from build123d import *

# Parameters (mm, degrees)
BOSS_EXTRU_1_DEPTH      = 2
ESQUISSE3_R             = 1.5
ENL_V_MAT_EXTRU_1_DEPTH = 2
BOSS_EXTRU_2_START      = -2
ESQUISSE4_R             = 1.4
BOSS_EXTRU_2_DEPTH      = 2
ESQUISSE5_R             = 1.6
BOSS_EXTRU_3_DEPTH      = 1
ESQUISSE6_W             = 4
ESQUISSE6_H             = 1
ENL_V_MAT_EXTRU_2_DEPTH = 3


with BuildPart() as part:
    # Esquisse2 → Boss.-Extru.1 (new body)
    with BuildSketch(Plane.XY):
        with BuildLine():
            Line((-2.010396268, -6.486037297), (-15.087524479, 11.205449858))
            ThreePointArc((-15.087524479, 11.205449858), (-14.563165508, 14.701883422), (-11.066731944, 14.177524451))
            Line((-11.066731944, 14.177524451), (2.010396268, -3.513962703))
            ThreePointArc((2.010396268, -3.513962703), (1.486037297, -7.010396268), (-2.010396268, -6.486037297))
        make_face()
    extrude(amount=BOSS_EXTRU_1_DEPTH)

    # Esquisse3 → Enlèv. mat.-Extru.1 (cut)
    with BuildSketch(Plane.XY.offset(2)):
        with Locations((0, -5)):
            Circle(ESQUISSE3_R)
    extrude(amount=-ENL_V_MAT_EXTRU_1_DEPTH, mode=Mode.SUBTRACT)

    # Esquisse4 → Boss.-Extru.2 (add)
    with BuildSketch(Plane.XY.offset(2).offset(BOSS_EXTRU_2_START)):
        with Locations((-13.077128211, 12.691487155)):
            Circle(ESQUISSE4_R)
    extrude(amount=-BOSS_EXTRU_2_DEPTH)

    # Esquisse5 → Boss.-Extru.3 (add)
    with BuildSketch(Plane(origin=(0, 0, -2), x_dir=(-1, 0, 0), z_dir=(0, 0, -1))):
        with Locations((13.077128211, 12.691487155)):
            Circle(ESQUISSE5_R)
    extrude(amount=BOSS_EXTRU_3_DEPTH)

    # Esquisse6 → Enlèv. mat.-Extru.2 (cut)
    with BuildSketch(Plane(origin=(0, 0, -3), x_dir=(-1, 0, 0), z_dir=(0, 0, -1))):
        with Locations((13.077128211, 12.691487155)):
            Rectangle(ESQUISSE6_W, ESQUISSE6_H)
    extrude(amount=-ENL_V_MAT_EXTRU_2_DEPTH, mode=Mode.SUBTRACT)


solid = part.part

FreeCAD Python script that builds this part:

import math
import FreeCAD as App
import Part
import Sketcher

doc = App.newDocument("Part")
body = doc.addObject("PartDesign::Body", "Body")

# Sketch on XY plane
sketch1 = doc.addObject("Sketcher::SketchObject", "Sketch")
body.addObject(sketch1)
sketch1.AttachmentSupport = (doc.XY_Plane, [""])
sketch1.MapMode = "FlatFace"
sketch1.addGeometry([
    Part.LineSegment(App.Vector(-15.1, 11.2, 0), App.Vector(-2, -6.5, 0)),
    Part.ArcOfCircle(Part.Circle(App.Vector(0, -5, 0), App.Vector(0, 0, 1), 2.5), math.radians(-144), math.radians(36)),
    Part.LineSegment(App.Vector(2, -3.5, 0), App.Vector(-11.1, 14.2, 0)),
    Part.ArcOfCircle(Part.Circle(App.Vector(-13.1, 12.7, 0), App.Vector(0, 0, 1), 2.5), math.radians(36), math.radians(216)),
], False)
sketch1.addConstraint([
    Sketcher.Constraint("Tangent", 0, 2, 1, 1),
    Sketcher.Constraint("Tangent", 1, 2, 2, 1),
    Sketcher.Constraint("Tangent", 2, 2, 3, 1),
    Sketcher.Constraint("Tangent", 3, 2, 0, 1),
    Sketcher.Constraint("Equal", 1, 3),
    Sketcher.Constraint("PointOnObject", 1, 3, -2),
    Sketcher.Constraint("Radius", 1, 2.5),
    Sketcher.Constraint("Distance", 0, 22.0),
    Sketcher.Constraint("DistanceY", 1, 3, -1, 1, 5.0),
    Sketcher.Constraint("DistanceX", 3, 3, -1, 1, 13.077128),
])
pad1 = doc.addObject("PartDesign::Pad", "Pad")
body.addObject(pad1)
pad1.Profile = sketch1
pad1.Length = 2

# Sketch on XY plane
sketch2 = doc.addObject("Sketcher::SketchObject", "Sketch001")
body.addObject(sketch2)
sketch2.AttachmentSupport = (doc.XY_Plane, [""])
sketch2.MapMode = "FlatFace"
sketch2.AttachmentOffset = App.Placement(App.Vector(0, 0, 2), App.Rotation())
sketch2.addGeometry(Part.Circle(App.Vector(0, -5, 0), App.Vector(0, 0, 1), 1.5), False)
sketch2.addConstraint([
    Sketcher.Constraint("PointOnObject", 0, 3, -2),
    Sketcher.Constraint("Diameter", 0, 3.0),
    Sketcher.Constraint("DistanceY", 0, 3, -1, 1, 5.0),
])
pocket1 = doc.addObject("PartDesign::Pocket", "Pocket")
body.addObject(pocket1)
pocket1.Profile = sketch2
pocket1.Length = 2

# Sketch on XY plane
sketch3 = doc.addObject("Sketcher::SketchObject", "Sketch002")
body.addObject(sketch3)
sketch3.AttachmentSupport = (doc.XY_Plane, [""])
sketch3.MapMode = "FlatFace"
sketch3.addGeometry(Part.Circle(App.Vector(-13.1, 12.7, 0), App.Vector(0, 0, 1), 1.4), False)
sketch3.addConstraint([
    Sketcher.Constraint("Diameter", 0, 2.8),
    Sketcher.Constraint("DistanceX", 0, 3, -1, 1, 13.077128),
    Sketcher.Constraint("DistanceY", -1, 1, 0, 3, 12.691487),
])
pad2 = doc.addObject("PartDesign::Pad", "Pad001")
body.addObject(pad2)
pad2.Profile = sketch3
pad2.Length = 2
pad2.Reversed = True

# Sketch on XY plane
sketch4 = doc.addObject("Sketcher::SketchObject", "Sketch003")
body.addObject(sketch4)
sketch4.AttachmentSupport = (doc.XY_Plane, [""])
sketch4.MapMode = "FlatFace"
sketch4.AttachmentOffset = App.Placement(App.Vector(0, 0, -2), App.Rotation())
sketch4.addGeometry(Part.Circle(App.Vector(-13.1, 12.7, 0), App.Vector(0, 0, 1), 1.6), False)
sketch4.addConstraint([
    Sketcher.Constraint("Diameter", 0, 3.2),
    Sketcher.Constraint("DistanceX", 0, 3, -1, 1, 13.077128),
    Sketcher.Constraint("DistanceY", -1, 1, 0, 3, 12.691487),
])
pad3 = doc.addObject("PartDesign::Pad", "Pad002")
body.addObject(pad3)
pad3.Profile = sketch4
pad3.Length = 1
pad3.Reversed = True

# Sketch on XY plane
sketch5 = doc.addObject("Sketcher::SketchObject", "Sketch004")
body.addObject(sketch5)
sketch5.AttachmentSupport = (doc.XY_Plane, [""])
sketch5.MapMode = "FlatFace"
sketch5.AttachmentOffset = App.Placement(App.Vector(0, 0, -3), App.Rotation())
sketch5.addGeometry([
    Part.LineSegment(App.Vector(-11.1, 13.2, 0), App.Vector(-11.1, 12.2, 0)),
    Part.LineSegment(App.Vector(-11.1, 12.2, 0), App.Vector(-15.1, 12.2, 0)),
    Part.LineSegment(App.Vector(-15.1, 12.2, 0), App.Vector(-15.1, 13.2, 0)),
    Part.LineSegment(App.Vector(-15.1, 13.2, 0), App.Vector(-11.1, 13.2, 0)),
], False)
sketch5.addConstraint([
    Sketcher.Constraint("Coincident", 0, 2, 1, 1),
    Sketcher.Constraint("Coincident", 1, 2, 2, 1),
    Sketcher.Constraint("Coincident", 2, 2, 3, 1),
    Sketcher.Constraint("Coincident", 3, 2, 0, 1),
    Sketcher.Constraint("Vertical", 0),
    Sketcher.Constraint("Horizontal", 1),
    Sketcher.Constraint("Vertical", 2),
    Sketcher.Constraint("Horizontal", 3),
    Sketcher.Constraint("DistanceX", 1, 2, 1, 1, 4.0),
    Sketcher.Constraint("DistanceY", 0, 2, 0, 1, 1.0),
    Sketcher.Constraint("DistanceX", 0, 2, -1, 1, 11.077128),
    Sketcher.Constraint("DistanceY", -1, 1, 0, 2, 12.191487),
])
pocket2 = doc.addObject("PartDesign::Pocket", "Pocket001")
body.addObject(pocket2)
pocket2.Profile = sketch5
pocket2.Length = 3
pocket2.Reversed = True

doc.recompute()
